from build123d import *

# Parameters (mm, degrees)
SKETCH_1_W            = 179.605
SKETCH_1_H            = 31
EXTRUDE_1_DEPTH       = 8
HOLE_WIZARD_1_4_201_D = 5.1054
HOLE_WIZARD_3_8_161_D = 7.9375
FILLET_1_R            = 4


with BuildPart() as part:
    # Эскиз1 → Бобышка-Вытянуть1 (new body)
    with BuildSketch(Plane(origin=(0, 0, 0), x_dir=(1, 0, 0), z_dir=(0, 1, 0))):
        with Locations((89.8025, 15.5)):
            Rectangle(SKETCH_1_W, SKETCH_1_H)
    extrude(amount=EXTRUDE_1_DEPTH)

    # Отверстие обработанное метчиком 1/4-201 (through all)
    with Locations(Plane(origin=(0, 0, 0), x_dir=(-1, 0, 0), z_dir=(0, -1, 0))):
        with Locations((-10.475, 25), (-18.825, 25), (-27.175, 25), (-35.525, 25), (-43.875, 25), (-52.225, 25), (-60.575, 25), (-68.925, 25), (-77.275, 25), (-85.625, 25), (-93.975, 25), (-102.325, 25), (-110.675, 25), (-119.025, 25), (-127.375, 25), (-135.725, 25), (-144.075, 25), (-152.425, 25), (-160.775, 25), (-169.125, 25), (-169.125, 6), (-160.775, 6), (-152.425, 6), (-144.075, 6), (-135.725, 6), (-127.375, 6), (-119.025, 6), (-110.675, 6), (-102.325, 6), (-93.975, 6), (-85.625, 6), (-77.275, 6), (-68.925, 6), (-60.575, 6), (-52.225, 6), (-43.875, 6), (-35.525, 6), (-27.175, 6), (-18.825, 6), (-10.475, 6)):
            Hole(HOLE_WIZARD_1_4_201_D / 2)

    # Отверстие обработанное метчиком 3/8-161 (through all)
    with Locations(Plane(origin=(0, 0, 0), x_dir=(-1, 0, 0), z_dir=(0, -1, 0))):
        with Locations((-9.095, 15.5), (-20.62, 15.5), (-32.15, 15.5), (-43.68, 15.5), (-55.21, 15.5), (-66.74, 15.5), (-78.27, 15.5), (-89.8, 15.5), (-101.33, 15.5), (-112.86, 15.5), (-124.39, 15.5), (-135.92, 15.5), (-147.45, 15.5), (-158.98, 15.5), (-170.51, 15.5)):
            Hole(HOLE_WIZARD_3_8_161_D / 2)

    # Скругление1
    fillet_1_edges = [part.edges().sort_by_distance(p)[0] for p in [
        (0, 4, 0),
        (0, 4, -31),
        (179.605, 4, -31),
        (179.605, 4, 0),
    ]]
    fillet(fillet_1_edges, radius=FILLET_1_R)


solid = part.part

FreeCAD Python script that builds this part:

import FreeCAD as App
import Part
import Sketcher


def edges_at(feature, points):
    """Names of the edges that pass closest to the given points."""
    edges = feature.Shape.Edges
    near = lambda p: min(range(len(edges)), key=lambda i: edges[i].distToShape(Part.Vertex(*p))[0])
    return sorted({f"Edge{near(p) + 1}" for p in points})


def add_polygon(sketch, points):
    """Adds a closed chain of lines whose ends are joined by coincident constraints."""
    first, n = sketch.GeometryCount, len(points)
    for a, b in zip(points, points[1:] + points[:1]):
        sketch.addGeometry(Part.LineSegment(App.Vector(*a, 0), App.Vector(*b, 0)), False)
    for i in range(n):
        sketch.addConstraint(Sketcher.Constraint("Coincident", first + i, 2, first + (i + 1) % n, 1))

doc = App.newDocument("Part")
body = doc.addObject("PartDesign::Body", "Body")

# Sketch on XZ plane
sketch1 = doc.addObject("Sketcher::SketchObject", "Sketch")
body.addObject(sketch1)
sketch1.AttachmentSupport = (doc.XZ_Plane, [""])
sketch1.MapMode = "FlatFace"
add_polygon(sketch1, [(0, -31), (0, 0), (180, 0), (180, -31)])  # lines 0-3
sketch1.addConstraint(Sketcher.Constraint("Vertical", 0))
sketch1.addConstraint(Sketcher.Constraint("Horizontal", 1))
sketch1.addConstraint(Sketcher.Constraint("Vertical", 2))
sketch1.addConstraint(Sketcher.Constraint("Horizontal", 3))
sketch1.addConstraint(Sketcher.Constraint("Coincident", 0, 2, -1, 1))
sketch1.addConstraint(Sketcher.Constraint("DistanceY", 0, 1, 0, 2, 31.0))
sketch1.addConstraint(Sketcher.Constraint("DistanceX", 1, 1, 1, 2, 179.605))
pad1 = doc.addObject("PartDesign::Pad", "Pad")
body.addObject(pad1)
pad1.Profile = sketch1
pad1.Length = 8
pad1.Reversed = True

# Sketch on XZ plane
sketch2 = doc.addObject("Sketcher::SketchObject", "Sketch001")
body.addObject(sketch2)
sketch2.AttachmentSupport = (doc.XZ_Plane, [""])
sketch2.MapMode = "FlatFace"
sketch2.addGeometry(Part.Circle(App.Vector(10.5, -25, 0), App.Vector(0, 0, 1), 2.6), False)
sketch2.addGeometry(Part.Circle(App.Vector(18.8, -25, 0), App.Vector(0, 0, 1), 2.6), False)
sketch2.addGeometry(Part.Circle(App.Vector(27.2, -25, 0), App.Vector(0, 0, 1), 2.6), False)
sketch2.addGeometry(Part.Circle(App.Vector(35.5, -25, 0), App.Vector(0, 0, 1), 2.6), False)
sketch2.addGeometry(Part.Circle(App.Vector(43.9, -25, 0), App.Vector(0, 0, 1), 2.6), False)
sketch2.addGeometry(Part.Circle(App.Vector(52.2, -25, 0), App.Vector(0, 0, 1), 2.6), False)
sketch2.addGeometry(Part.Circle(App.Vector(60.6, -25, 0), App.Vector(0, 0, 1), 2.6), False)
sketch2.addGeometry(Part.Circle(App.Vector(68.9, -25, 0), App.Vector(0, 0, 1), 2.6), False)
sketch2.addGeometry(Part.Circle(App.Vector(77.3, -25, 0), App.Vector(0, 0, 1), 2.6), False)
sketch2.addGeometry(Part.Circle(App.Vector(85.6, -25, 0), App.Vector(0, 0, 1), 2.6), False)
sketch2.addGeometry(Part.Circle(App.Vector(94, -25, 0), App.Vector(0, 0, 1), 2.6), False)
sketch2.addGeometry(Part.Circle(App.Vector(102.3, -25, 0), App.Vector(0, 0, 1), 2.6), False)
sketch2.addGeometry(Part.Circle(App.Vector(110.7, -25, 0), App.Vector(0, 0, 1), 2.6), False)
sketch2.addGeometry(Part.Circle(App.Vector(119, -25, 0), App.Vector(0, 0, 1), 2.6), False)
sketch2.addGeometry(Part.Circle(App.Vector(127.4, -25, 0), App.Vector(0, 0, 1), 2.6), False)
sketch2.addGeometry(Part.Circle(App.Vector(135.7, -25, 0), App.Vector(0, 0, 1), 2.6), False)
sketch2.addGeometry(Part.Circle(App.Vector(144.1, -25, 0), App.Vector(0, 0, 1), 2.6), False)
sketch2.addGeometry(Part.Circle(App.Vector(152.4, -25, 0), App.Vector(0, 0, 1), 2.6), False)
sketch2.addGeometry(Part.Circle(App.Vector(160.8, -25, 0), App.Vector(0, 0, 1), 2.6), False)
sketch2.addGeometry(Part.Circle(App.Vector(169.1, -25, 0), App.Vector(0, 0, 1), 2.6), False)
sketch2.addGeometry(Part.Circle(App.Vector(169.1, -6, 0), App.Vector(0, 0, 1), 2.6), False)
sketch2.addGeometry(Part.Circle(App.Vector(160.8, -6, 0), App.Vector(0, 0, 1), 2.6), False)
sketch2.addGeometry(Part.Circle(App.Vector(152.4, -6, 0), App.Vector(0, 0, 1), 2.6), False)
sketch2.addGeometry(Part.Circle(App.Vector(144.1, -6, 0), App.Vector(0, 0, 1), 2.6), False)
sketch2.addGeometry(Part.Circle(App.Vector(135.7, -6, 0), App.Vector(0, 0, 1), 2.6), False)
sketch2.addGeometry(Part.Circle(App.Vector(127.4, -6, 0), App.Vector(0, 0, 1), 2.6), False)
sketch2.addGeometry(Part.Circle(App.Vector(119, -6, 0), App.Vector(0, 0, 1), 2.6), False)
sketch2.addGeometry(Part.Circle(App.Vector(110.7, -6, 0), App.Vector(0, 0, 1), 2.6), False)
sketch2.addGeometry(Part.Circle(App.Vector(102.3, -6, 0), App.Vector(0, 0, 1), 2.6), False)
sketch2.addGeometry(Part.Circle(App.Vector(94, -6, 0), App.Vector(0, 0, 1), 2.6), False)
sketch2.addGeometry(Part.Circle(App.Vector(85.6, -6, 0), App.Vector(0, 0, 1), 2.6), False)
sketch2.addGeometry(Part.Circle(App.Vector(77.3, -6, 0), App.Vector(0, 0, 1), 2.6), False)
sketch2.addGeometry(Part.Circle(App.Vector(68.9, -6, 0), App.Vector(0, 0, 1), 2.6), False)
sketch2.addGeometry(Part.Circle(App.Vector(60.6, -6, 0), App.Vector(0, 0, 1), 2.6), False)
sketch2.addGeometry(Part.Circle(App.Vector(52.2, -6, 0), App.Vector(0, 0, 1), 2.6), False)
sketch2.addGeometry(Part.Circle(App.Vector(43.9, -6, 0), App.Vector(0, 0, 1), 2.6), False)
sketch2.addGeometry(Part.Circle(App.Vector(35.5, -6, 0), App.Vector(0, 0, 1), 2.6), False)
sketch2.addGeometry(Part.Circle(App.Vector(27.2, -6, 0), App.Vector(0, 0, 1), 2.6), False)
sketch2.addGeometry(Part.Circle(App.Vector(18.8, -6, 0), App.Vector(0, 0, 1), 2.6), False)
sketch2.addGeometry(Part.Circle(App.Vector(10.5, -6, 0), App.Vector(0, 0, 1), 2.6), False)
sketch2.addConstraint(Sketcher.Constraint("Equal", 0, 1))
sketch2.addConstraint(Sketcher.Constraint("Equal", 1, 2))
sketch2.addConstraint(Sketcher.Constraint("Equal", 2, 3))
sketch2.addConstraint(Sketcher.Constraint("Equal", 3, 4))
sketch2.addConstraint(Sketcher.Constraint("Equal", 4, 5))
sketch2.addConstraint(Sketcher.Constraint("Equal", 5, 6))
sketch2.addConstraint(Sketcher.Constraint("Equal", 6, 7))
sketch2.addConstraint(Sketcher.Constraint("Equal", 7, 8))
sketch2.addConstraint(Sketcher.Constraint("Equal", 8, 9))
sketch2.addConstraint(Sketcher.Constraint("Equal", 9, 10))
sketch2.addConstraint(Sketcher.Constraint("Equal", 10, 11))
sketch2.addConstraint(Sketcher.Constraint("Equal", 11, 12))
sketch2.addConstraint(Sketcher.Constraint("Equal", 12, 13))
sketch2.addConstraint(Sketcher.Constraint("Equal", 13, 14))
sketch2.addConstraint(Sketcher.Constraint("Equal", 14, 15))
sketch2.addConstraint(Sketcher.Constraint("Equal", 15, 16))
sketch2.addConstraint(Sketcher.Constraint("Equal", 16, 17))
sketch2.addConstraint(Sketcher.Constraint("Equal", 17, 18))
sketch2.addConstraint(Sketcher.Constraint("Equal", 18, 19))
sketch2.addConstraint(Sketcher.Constraint("Equal", 19, 20))
sketch2.addConstraint(Sketcher.Constraint("Equal", 20, 21))
sketch2.addConstraint(Sketcher.Constraint("Equal", 21, 22))
sketch2.addConstraint(Sketcher.Constraint("Equal", 22, 23))
sketch2.addConstraint(Sketcher.Constraint("Equal", 23, 24))
sketch2.addConstraint(Sketcher.Constraint("Equal", 24, 25))
sketch2.addConstraint(Sketcher.Constraint("Equal", 25, 26))
sketch2.addConstraint(Sketcher.Constraint("Equal", 26, 27))
sketch2.addConstraint(Sketcher.Constraint("Equal", 27, 28))
sketch2.addConstraint(Sketcher.Constraint("Equal", 28, 29))
sketch2.addConstraint(Sketcher.Constraint("Equal", 29, 30))
sketch2.addConstraint(Sketcher.Constraint("Equal", 30, 31))
sketch2.addConstraint(Sketcher.Constraint("Equal", 31, 32))
sketch2.addConstraint(Sketcher.Constraint("Equal", 32, 33))
sketch2.addConstraint(Sketcher.Constraint("Equal", 33, 34))
sketch2.addConstraint(Sketcher.Constraint("Equal", 34, 35))
sketch2.addConstraint(Sketcher.Constraint("Equal", 35, 36))
sketch2.addConstraint(Sketcher.Constraint("Equal", 36, 37))
sketch2.addConstraint(Sketcher.Constraint("Equal", 37, 38))
sketch2.addConstraint(Sketcher.Constraint("Equal", 38, 39))
sketch2.addConstraint(Sketcher.Constraint("Horizontal", 0, 3, 1, 3))
sketch2.addConstraint(Sketcher.Constraint("Horizontal", 1, 3, 2, 3))
sketch2.addConstraint(Sketcher.Constraint("Horizontal", 2, 3, 3, 3))
sketch2.addConstraint(Sketcher.Constraint("Horizontal", 3, 3, 4, 3))
sketch2.addConstraint(Sketcher.Constraint("Horizontal", 4, 3, 5, 3))
sketch2.addConstraint(Sketcher.Constraint("Horizontal", 5, 3, 6, 3))
sketch2.addConstraint(Sketcher.Constraint("Horizontal", 6, 3, 7, 3))
sketch2.addConstraint(Sketcher.Constraint("Horizontal", 7, 3, 8, 3))
sketch2.addConstraint(Sketcher.Constraint("Horizontal", 8, 3, 9, 3))
sketch2.addConstraint(Sketcher.Constraint("Horizontal", 9, 3, 10, 3))
sketch2.addConstraint(Sketcher.Constraint("Horizontal", 10, 3, 11, 3))
sketch2.addConstraint(Sketcher.Constraint("Horizontal", 11, 3, 12, 3))
sketch2.addConstraint(Sketcher.Constraint("Horizontal", 12, 3, 13, 3))
sketch2.addConstraint(Sketcher.Constraint("Horizontal", 13, 3, 14, 3))
sketch2.addConstraint(Sketcher.Constraint("Horizontal", 14, 3, 15, 3))
sketch2.addConstraint(Sketcher.Constraint("Horizontal", 15, 3, 16, 3))
sketch2.addConstraint(Sketcher.Constraint("Horizontal", 16, 3, 17, 3))
sketch2.addConstraint(Sketcher.Constraint("Horizontal", 17, 3, 18, 3))
sketch2.addConstraint(Sketcher.Constraint("Horizontal", 18, 3, 19, 3))
sketch2.addConstraint(Sketcher.Constraint("Horizontal", 20, 3, 21, 3))
sketch2.addConstraint(Sketcher.Constraint("Horizontal", 21, 3, 22, 3))
sketch2.addConstraint(Sketcher.Constraint("Horizontal", 22, 3, 23, 3))
sketch2.addConstraint(Sketcher.Constraint("Horizontal", 23, 3, 24, 3))
sketch2.addConstraint(Sketcher.Constraint("Horizontal", 24, 3, 25, 3))
sketch2.addConstraint(Sketcher.Constraint("Horizontal", 25, 3, 26, 3))
sketch2.addConstraint(Sketcher.Constraint("Horizontal", 26, 3, 27, 3))
sketch2.addConstraint(Sketcher.Constraint("Horizontal", 27, 3, 28, 3))
sketch2.addConstraint(Sketcher.Constraint("Horizontal", 28, 3, 29, 3))
sketch2.addConstraint(Sketcher.Constraint("Horizontal", 29, 3, 30, 3))
sketch2.addConstraint(Sketcher.Constraint("Horizontal", 30, 3, 31, 3))
sketch2.addConstraint(Sketcher.Constraint("Horizontal", 31, 3, 32, 3))
sketch2.addConstraint(Sketcher.Constraint("Horizontal", 32, 3, 33, 3))
sketch2.addConstraint(Sketcher.Constraint("Horizontal", 33, 3, 34, 3))
sketch2.addConstraint(Sketcher.Constraint("Horizontal", 34, 3, 35, 3))
sketch2.addConstraint(Sketcher.Constraint("Horizontal", 35, 3, 36, 3))
sketch2.addConstraint(Sketcher.Constraint("Horizontal", 36, 3, 37, 3))
sketch2.addConstraint(Sketcher.Constraint("Horizontal", 37, 3, 38, 3))
sketch2.addConstraint(Sketcher.Constraint("Horizontal", 38, 3, 39, 3))
sketch2.addConstraint(Sketcher.Constraint("Vertical", 19, 3, 20, 3))
sketch2.addConstraint(Sketcher.Constraint("Vertical", 18, 3, 21, 3))
sketch2.addConstraint(Sketcher.Constraint("Vertical", 17, 3, 22, 3))
sketch2.addConstraint(Sketcher.Constraint("Vertical", 16, 3, 23, 3))
sketch2.addConstraint(Sketcher.Constraint("Vertical", 15, 3, 24, 3))
sketch2.addConstraint(Sketcher.Constraint("Vertical", 14, 3, 25, 3))
sketch2.addConstraint(Sketcher.Constraint("Vertical", 13, 3, 26, 3))
sketch2.addConstraint(Sketcher.Constraint("Vertical", 12, 3, 27, 3))
sketch2.addConstraint(Sketcher.Constraint("Vertical", 11, 3, 28, 3))
sketch2.addConstraint(Sketcher.Constraint("Vertical", 10, 3, 29, 3))
sketch2.addConstraint(Sketcher.Constraint("Vertical", 9, 3, 30, 3))
sketch2.addConstraint(Sketcher.Constraint("Vertical", 8, 3, 31, 3))
sketch2.addConstraint(Sketcher.Constraint("Vertical", 7, 3, 32, 3))
sketch2.addConstraint(Sketcher.Constraint("Vertical", 6, 3, 33, 3))
sketch2.addConstraint(Sketcher.Constraint("Vertical", 5, 3, 34, 3))
sketch2.addConstraint(Sketcher.Constraint("Vertical", 4, 3, 35, 3))
sketch2.addConstraint(Sketcher.Constraint("Vertical", 3, 3, 36, 3))
sketch2.addConstraint(Sketcher.Constraint("Vertical", 2, 3, 37, 3))
sketch2.addConstraint(Sketcher.Constraint("Vertical", 1, 3, 38, 3))
sketch2.addConstraint(Sketcher.Constraint("Vertical", 0, 3, 39, 3))
sketch2.addConstraint(Sketcher.Constraint("DistanceY", 0, 3, -1, 1, 25.0))
sketch2.addConstraint(Sketcher.Constraint("DistanceY", 20, 3, -1, 1, 6.0))
sketch2.addConstraint(Sketcher.Constraint("Diameter", 0, 5.1054))
sketch2.addConstraint(Sketcher.Constraint("DistanceX", 0, 3, 2, 3, 16.7))
sketch2.addConstraint(Sketcher.Constraint("DistanceX", 1, 3, 3, 3, 16.7))
sketch2.addConstraint(Sketcher.Constraint("DistanceX", 2, 3, 4, 3, 16.7))
sketch2.addConstraint(Sketcher.Constraint("DistanceX", 3, 3, 5, 3, 16.7))
sketch2.addConstraint(Sketcher.Constraint("DistanceX", 4, 3, 6, 3, 16.7))
sketch2.addConstraint(Sketcher.Constraint("DistanceX", 5, 3, 7, 3, 16.7))
sketch2.addConstraint(Sketcher.Constraint("DistanceX", 6, 3, 8, 3, 16.7))
sketch2.addConstraint(Sketcher.Constraint("DistanceX", 7, 3, 9, 3, 16.7))
sketch2.addConstraint(Sketcher.Constraint("DistanceX", 8, 3, 10, 3, 16.7))
sketch2.addConstraint(Sketcher.Constraint("DistanceX", 9, 3, 11, 3, 16.7))
sketch2.addConstraint(Sketcher.Constraint("DistanceX", 10, 3, 12, 3, 16.7))
sketch2.addConstraint(Sketcher.Constraint("DistanceX", 11, 3, 13, 3, 16.7))
sketch2.addConstraint(Sketcher.Constraint("DistanceX", 12, 3, 14, 3, 16.7))
sketch2.addConstraint(Sketcher.Constraint("DistanceX", 13, 3, 15, 3, 16.7))
sketch2.addConstraint(Sketcher.Constraint("DistanceX", 14, 3, 16, 3, 16.7))
sketch2.addConstraint(Sketcher.Constraint("DistanceX", 15, 3, 17, 3, 16.7))
sketch2.addConstraint(Sketcher.Constraint("DistanceX", 16, 3, 18, 3, 16.7))
sketch2.addConstraint(Sketcher.Constraint("DistanceX", 17, 3, 19, 3, 16.7))
sketch2.addConstraint(Sketcher.Constraint("DistanceX", 0, 3, 1, 3, 8.35))
sketch2.addConstraint(Sketcher.Constraint("DistanceX", -1, 1, 0, 3, 10.475))
doc.recompute()
hole = doc.addObject("PartDesign::Hole", "Hole")
body.addObject(hole)
hole.Profile = sketch2
hole.ThreadType = "None"
hole.Diameter = 5.1054
hole.DepthType = "ThroughAll"

# Sketch on XZ plane
sketch3 = doc.addObject("Sketcher::SketchObject", "Sketch002")
body.addObject(sketch3)
sketch3.AttachmentSupport = (doc.XZ_Plane, [""])
sketch3.MapMode = "FlatFace"
sketch3.addGeometry(Part.Circle(App.Vector(9.1, -15.5, 0), App.Vector(0, 0, 1), 4), False)
sketch3.addGeometry(Part.Circle(App.Vector(20.6, -15.5, 0), App.Vector(0, 0, 1), 4), False)
sketch3.addGeometry(Part.Circle(App.Vector(32.1, -15.5, 0), App.Vector(0, 0, 1), 4), False)
sketch3.addGeometry(Part.Circle(App.Vector(43.7, -15.5, 0), App.Vector(0, 0, 1), 4), False)
sketch3.addGeometry(Part.Circle(App.Vector(55.2, -15.5, 0), App.Vector(0, 0, 1), 4), False)
sketch3.addGeometry(Part.Circle(App.Vector(66.7, -15.5, 0), App.Vector(0, 0, 1), 4), False)
sketch3.addGeometry(Part.Circle(App.Vector(78.3, -15.5, 0), App.Vector(0, 0, 1), 4), False)
sketch3.addGeometry(Part.Circle(App.Vector(89.8, -15.5, 0), App.Vector(0, 0, 1), 4), False)
sketch3.addGeometry(Part.Circle(App.Vector(101.3, -15.5, 0), App.Vector(0, 0, 1), 4), False)
sketch3.addGeometry(Part.Circle(App.Vector(112.9, -15.5, 0), App.Vector(0, 0, 1), 4), False)
sketch3.addGeometry(Part.Circle(App.Vector(124.4, -15.5, 0), App.Vector(0, 0, 1), 4), False)
sketch3.addGeometry(Part.Circle(App.Vector(135.9, -15.5, 0), App.Vector(0, 0, 1), 4), False)
sketch3.addGeometry(Part.Circle(App.Vector(147.4, -15.5, 0), App.Vector(0, 0, 1), 4), False)
sketch3.addGeometry(Part.Circle(App.Vector(159, -15.5, 0), App.Vector(0, 0, 1), 4), False)
sketch3.addGeometry(Part.Circle(App.Vector(170.5, -15.5, 0), App.Vector(0, 0, 1), 4), False)
sketch3.addConstraint(Sketcher.Constraint("Equal", 0, 1))
sketch3.addConstraint(Sketcher.Constraint("Equal", 1, 2))
sketch3.addConstraint(Sketcher.Constraint("Equal", 2, 3))
sketch3.addConstraint(Sketcher.Constraint("Equal", 3, 4))
sketch3.addConstraint(Sketcher.Constraint("Equal", 4, 5))
sketch3.addConstraint(Sketcher.Constraint("Equal", 5, 6))
sketch3.addConstraint(Sketcher.Constraint("Equal", 6, 7))
sketch3.addConstraint(Sketcher.Constraint("Equal", 7, 8))
sketch3.addConstraint(Sketcher.Constraint("Equal", 8, 9))
sketch3.addConstraint(Sketcher.Constraint("Equal", 9, 10))
sketch3.addConstraint(Sketcher.Constraint("Equal", 10, 11))
sketch3.addConstraint(Sketcher.Constraint("Equal", 11, 12))
sketch3.addConstraint(Sketcher.Constraint("Equal", 12, 13))
sketch3.addConstraint(Sketcher.Constraint("Equal", 13, 14))
sketch3.addConstraint(Sketcher.Constraint("Horizontal", 0, 3, 1, 3))
sketch3.addConstraint(Sketcher.Constraint("Horizontal", 1, 3, 2, 3))
sketch3.addConstraint(Sketcher.Constraint("Horizontal", 2, 3, 3, 3))
sketch3.addConstraint(Sketcher.Constraint("Horizontal", 3, 3, 4, 3))
sketch3.addConstraint(Sketcher.Constraint("Horizontal", 4, 3, 5, 3))
sketch3.addConstraint(Sketcher.Constraint("Horizontal", 5, 3, 6, 3))
sketch3.addConstraint(Sketcher.Constraint("Horizontal", 6, 3, 7, 3))
sketch3.addConstraint(Sketcher.Constraint("Horizontal", 7, 3, 8, 3))
sketch3.addConstraint(Sketcher.Constraint("Horizontal", 8, 3, 9, 3))
sketch3.addConstraint(Sketcher.Constraint("Horizontal", 9, 3, 10, 3))
sketch3.addConstraint(Sketcher.Constraint("Horizontal", 10, 3, 11, 3))
sketch3.addConstraint(Sketcher.Constraint("Horizontal", 11, 3, 12, 3))
sketch3.addConstraint(Sketcher.Constraint("Horizontal", 12, 3, 13, 3))
sketch3.addConstraint(Sketcher.Constraint("Horizontal", 13, 3, 14, 3))
sketch3.addConstraint(Sketcher.Constraint("Diameter", 0, 7.9375))
sketch3.addConstraint(Sketcher.Constraint("DistanceY", 0, 3, -1, 1, 15.5))
sketch3.addConstraint(Sketcher.Constraint("DistanceX", -1, 1, 7, 3, 89.8))
sketch3.addConstraint(Sketcher.Constraint("DistanceX", -1, 1, 1, 3, 20.62))
sketch3.addConstraint(Sketcher.Constraint("DistanceX", -1, 1, 2, 3, 32.15))
sketch3.addConstraint(Sketcher.Constraint("DistanceX", -1, 1, 3, 3, 43.68))
sketch3.addConstraint(Sketcher.Constraint("DistanceX", -1, 1, 4, 3, 55.21))
sketch3.addConstraint(Sketcher.Constraint("DistanceX", -1, 1, 5, 3, 66.74))
sketch3.addConstraint(Sketcher.Constraint("DistanceX", -1, 1, 6, 3, 78.27))
sketch3.addConstraint(Sketcher.Constraint("DistanceX", -1, 1, 8, 3, 101.33))
sketch3.addConstraint(Sketcher.Constraint("DistanceX", -1, 1, 9, 3, 112.86))
sketch3.addConstraint(Sketcher.Constraint("DistanceX", -1, 1, 10, 3, 124.39))
sketch3.addConstraint(Sketcher.Constraint("DistanceX", -1, 1, 11, 3, 135.92))
sketch3.addConstraint(Sketcher.Constraint("DistanceX", -1, 1, 12, 3, 147.45))
sketch3.addConstraint(Sketcher.Constraint("DistanceX", -1, 1, 13, 3, 158.98))
sketch3.addConstraint(Sketcher.Constraint("DistanceX", -1, 1, 14, 3, 170.51))
sketch3.addConstraint(Sketcher.Constraint("DistanceX", -1, 1, 0, 3, 9.095))
doc.recompute()
hole2 = doc.addObject("PartDesign::Hole", "Hole001")
body.addObject(hole2)
hole2.Profile = sketch3
hole2.ThreadType = "None"
hole2.Diameter = 7.9375
hole2.DepthType = "ThroughAll"
doc.recompute()

fillet = doc.addObject("PartDesign::Fillet", "Fillet")
body.addObject(fillet)
fillet.Base = (hole2, edges_at(hole2, [
    (0, 4, 0),
    (0, 4, -31),
    (179.605, 4, -31),
    (179.605, 4, 0),
]))
fillet.Radius = 4

doc.recompute()
